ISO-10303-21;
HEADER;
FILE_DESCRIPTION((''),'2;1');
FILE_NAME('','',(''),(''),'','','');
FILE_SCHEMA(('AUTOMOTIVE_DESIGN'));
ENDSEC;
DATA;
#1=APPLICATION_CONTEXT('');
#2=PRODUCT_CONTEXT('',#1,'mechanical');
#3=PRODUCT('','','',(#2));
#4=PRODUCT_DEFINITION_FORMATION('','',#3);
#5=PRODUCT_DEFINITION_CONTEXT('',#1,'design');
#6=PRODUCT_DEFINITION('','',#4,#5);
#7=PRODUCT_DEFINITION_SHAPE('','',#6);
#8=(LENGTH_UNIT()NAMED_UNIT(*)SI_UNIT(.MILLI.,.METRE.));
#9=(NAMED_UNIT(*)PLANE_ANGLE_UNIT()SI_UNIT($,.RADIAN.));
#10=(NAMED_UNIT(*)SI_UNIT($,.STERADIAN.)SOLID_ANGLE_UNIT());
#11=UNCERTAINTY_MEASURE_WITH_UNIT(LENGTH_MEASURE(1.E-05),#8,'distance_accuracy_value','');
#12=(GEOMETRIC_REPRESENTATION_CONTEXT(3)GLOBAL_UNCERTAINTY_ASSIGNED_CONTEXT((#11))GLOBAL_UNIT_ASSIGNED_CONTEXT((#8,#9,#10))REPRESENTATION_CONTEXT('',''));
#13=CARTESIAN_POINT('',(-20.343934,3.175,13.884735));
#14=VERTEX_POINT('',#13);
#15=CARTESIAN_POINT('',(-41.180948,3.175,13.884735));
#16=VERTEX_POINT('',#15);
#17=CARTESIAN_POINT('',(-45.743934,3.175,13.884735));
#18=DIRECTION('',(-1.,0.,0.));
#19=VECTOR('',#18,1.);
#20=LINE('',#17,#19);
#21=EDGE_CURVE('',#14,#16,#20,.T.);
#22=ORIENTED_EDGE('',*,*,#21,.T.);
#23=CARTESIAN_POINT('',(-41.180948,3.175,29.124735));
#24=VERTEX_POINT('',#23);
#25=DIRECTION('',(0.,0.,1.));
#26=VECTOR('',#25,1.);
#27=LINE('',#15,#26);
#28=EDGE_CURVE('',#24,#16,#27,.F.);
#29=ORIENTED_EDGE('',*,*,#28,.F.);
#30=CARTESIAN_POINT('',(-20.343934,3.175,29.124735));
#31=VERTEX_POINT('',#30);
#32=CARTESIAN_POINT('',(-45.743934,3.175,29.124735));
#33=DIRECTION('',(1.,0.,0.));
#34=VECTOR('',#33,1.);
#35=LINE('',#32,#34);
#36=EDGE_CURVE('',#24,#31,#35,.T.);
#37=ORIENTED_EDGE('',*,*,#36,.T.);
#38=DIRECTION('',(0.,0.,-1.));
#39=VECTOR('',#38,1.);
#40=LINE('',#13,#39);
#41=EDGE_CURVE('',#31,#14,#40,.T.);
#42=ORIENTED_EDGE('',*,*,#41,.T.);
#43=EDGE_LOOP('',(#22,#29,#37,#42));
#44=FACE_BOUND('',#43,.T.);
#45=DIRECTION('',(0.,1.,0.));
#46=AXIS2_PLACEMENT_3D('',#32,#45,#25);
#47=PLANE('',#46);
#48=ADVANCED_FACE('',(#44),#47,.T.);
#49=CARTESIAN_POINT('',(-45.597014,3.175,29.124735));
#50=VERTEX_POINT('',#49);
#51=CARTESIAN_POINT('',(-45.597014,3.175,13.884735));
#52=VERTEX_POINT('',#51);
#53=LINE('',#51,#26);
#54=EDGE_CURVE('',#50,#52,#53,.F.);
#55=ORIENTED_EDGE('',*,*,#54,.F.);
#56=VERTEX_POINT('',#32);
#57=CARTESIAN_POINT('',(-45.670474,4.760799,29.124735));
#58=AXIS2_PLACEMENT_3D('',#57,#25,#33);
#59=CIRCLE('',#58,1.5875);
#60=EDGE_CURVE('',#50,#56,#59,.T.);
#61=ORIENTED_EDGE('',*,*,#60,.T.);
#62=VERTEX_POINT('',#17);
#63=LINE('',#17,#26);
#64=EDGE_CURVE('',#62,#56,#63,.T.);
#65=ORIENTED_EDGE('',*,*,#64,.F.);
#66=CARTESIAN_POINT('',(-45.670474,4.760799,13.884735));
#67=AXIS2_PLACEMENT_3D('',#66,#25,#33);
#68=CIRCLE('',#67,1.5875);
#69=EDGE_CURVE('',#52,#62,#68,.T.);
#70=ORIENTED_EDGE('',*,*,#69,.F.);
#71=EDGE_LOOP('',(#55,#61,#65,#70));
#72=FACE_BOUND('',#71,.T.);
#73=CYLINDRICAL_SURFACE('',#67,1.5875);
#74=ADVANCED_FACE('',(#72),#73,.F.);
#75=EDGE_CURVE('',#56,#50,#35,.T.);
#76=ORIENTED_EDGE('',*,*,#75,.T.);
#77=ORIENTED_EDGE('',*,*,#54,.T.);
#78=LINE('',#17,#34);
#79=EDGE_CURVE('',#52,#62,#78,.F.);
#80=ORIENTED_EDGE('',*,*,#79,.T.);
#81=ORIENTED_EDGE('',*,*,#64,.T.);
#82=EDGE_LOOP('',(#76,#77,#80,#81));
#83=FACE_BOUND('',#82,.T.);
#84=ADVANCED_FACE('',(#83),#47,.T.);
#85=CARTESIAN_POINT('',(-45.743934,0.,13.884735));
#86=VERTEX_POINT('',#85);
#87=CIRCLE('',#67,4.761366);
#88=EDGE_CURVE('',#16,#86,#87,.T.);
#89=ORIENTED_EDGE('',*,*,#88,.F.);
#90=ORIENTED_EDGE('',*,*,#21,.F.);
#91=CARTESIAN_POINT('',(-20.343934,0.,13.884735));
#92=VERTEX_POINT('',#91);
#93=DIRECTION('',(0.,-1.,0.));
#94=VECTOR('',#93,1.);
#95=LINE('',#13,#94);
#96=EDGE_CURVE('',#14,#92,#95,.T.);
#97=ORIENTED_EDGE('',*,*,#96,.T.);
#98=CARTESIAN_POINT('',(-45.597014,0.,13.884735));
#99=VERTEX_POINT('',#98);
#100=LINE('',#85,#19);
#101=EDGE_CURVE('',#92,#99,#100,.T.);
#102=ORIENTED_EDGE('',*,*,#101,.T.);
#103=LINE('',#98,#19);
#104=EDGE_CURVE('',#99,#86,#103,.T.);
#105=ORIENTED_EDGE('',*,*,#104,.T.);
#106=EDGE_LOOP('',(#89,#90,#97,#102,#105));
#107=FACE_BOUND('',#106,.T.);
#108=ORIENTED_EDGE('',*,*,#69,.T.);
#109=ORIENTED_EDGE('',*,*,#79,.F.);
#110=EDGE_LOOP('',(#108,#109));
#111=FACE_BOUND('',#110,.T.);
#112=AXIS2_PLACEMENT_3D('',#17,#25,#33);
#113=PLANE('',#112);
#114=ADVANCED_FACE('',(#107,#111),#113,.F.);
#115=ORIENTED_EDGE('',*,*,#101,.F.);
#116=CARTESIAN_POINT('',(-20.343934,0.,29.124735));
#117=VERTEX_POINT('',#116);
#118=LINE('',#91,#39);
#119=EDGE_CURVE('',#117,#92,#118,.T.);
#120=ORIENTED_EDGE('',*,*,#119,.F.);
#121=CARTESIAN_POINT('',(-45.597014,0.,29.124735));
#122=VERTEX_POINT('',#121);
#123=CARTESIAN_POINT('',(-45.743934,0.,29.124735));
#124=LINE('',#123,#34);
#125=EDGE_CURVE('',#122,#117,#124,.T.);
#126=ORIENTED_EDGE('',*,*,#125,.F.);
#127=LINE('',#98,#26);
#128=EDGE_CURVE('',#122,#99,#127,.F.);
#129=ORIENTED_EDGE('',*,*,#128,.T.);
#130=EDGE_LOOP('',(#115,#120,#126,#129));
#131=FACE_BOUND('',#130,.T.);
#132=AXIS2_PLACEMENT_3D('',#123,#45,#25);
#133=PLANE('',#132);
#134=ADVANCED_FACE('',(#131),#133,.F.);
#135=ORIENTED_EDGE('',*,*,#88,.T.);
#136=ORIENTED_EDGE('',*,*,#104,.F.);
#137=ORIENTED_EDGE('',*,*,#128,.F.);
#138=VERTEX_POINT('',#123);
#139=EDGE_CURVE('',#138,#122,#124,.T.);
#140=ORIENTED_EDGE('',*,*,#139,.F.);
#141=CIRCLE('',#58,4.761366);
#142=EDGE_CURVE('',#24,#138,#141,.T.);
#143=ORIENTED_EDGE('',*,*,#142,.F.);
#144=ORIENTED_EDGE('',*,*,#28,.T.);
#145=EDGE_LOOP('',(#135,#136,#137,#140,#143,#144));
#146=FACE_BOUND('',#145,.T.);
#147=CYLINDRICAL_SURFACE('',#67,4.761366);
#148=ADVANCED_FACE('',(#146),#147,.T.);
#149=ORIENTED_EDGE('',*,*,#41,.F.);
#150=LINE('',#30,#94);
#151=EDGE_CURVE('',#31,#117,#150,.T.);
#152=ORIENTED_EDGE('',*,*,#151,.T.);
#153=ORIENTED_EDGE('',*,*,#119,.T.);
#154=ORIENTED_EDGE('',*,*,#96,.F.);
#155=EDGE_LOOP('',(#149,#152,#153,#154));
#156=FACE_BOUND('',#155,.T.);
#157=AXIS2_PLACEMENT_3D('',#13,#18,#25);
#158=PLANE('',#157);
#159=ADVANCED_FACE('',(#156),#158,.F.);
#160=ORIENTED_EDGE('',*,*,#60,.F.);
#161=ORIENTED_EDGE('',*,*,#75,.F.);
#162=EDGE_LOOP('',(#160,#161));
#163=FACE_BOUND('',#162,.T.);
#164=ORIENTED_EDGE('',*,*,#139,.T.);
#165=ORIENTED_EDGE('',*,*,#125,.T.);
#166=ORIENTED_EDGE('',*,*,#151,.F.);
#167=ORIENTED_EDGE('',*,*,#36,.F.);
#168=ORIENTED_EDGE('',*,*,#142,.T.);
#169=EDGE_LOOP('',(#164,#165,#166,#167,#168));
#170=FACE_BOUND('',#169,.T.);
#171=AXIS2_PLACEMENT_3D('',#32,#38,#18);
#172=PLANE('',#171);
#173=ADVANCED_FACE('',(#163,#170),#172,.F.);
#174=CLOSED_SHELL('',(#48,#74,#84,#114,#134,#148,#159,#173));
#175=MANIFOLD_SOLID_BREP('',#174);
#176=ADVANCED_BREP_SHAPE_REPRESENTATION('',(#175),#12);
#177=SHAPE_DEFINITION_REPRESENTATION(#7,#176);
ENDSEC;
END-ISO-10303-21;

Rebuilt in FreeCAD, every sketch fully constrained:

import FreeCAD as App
import Part
import Sketcher
Q = App.Units.Quantity

doc = App.newDocument("Part")
body = doc.addObject("PartDesign::Body", "Body")

# Sketch on XZ plane
sketch1 = body.newObject("Sketcher::SketchObject", "Sketch")
sketch1.AttachmentSupport = (doc.getObject("XZ_Plane"), [""])
sketch1.MapMode = "FlatFace"
sketch1.addGeometry(Part.LineSegment(App.Vector(-45.743934, 13.884735, 0), App.Vector(-45.743934, 29.124735, 0)), False)
sketch1.addGeometry(Part.LineSegment(App.Vector(-45.743934, 29.124735, 0), App.Vector(-20.343934, 29.124735, 0)), False)
sketch1.addGeometry(Part.LineSegment(App.Vector(-20.343934, 29.124735, 0), App.Vector(-20.343934, 13.884735, 0)), False)
sketch1.addGeometry(Part.LineSegment(App.Vector(-20.343934, 13.884735, 0), App.Vector(-45.743934, 13.884735, 0)), False)
sketch1.addConstraint(Sketcher.Constraint("Coincident", 0, 2, 1, 1))
sketch1.addConstraint(Sketcher.Constraint("Coincident", 1, 2, 2, 1))
sketch1.addConstraint(Sketcher.Constraint("Coincident", 2, 2, 3, 1))
sketch1.addConstraint(Sketcher.Constraint("Coincident", 3, 2, 0, 1))
sketch1.addConstraint(Sketcher.Constraint("Vertical", 0))
sketch1.addConstraint(Sketcher.Constraint("Horizontal", 1))
sketch1.addConstraint(Sketcher.Constraint("Vertical", 2))
sketch1.addConstraint(Sketcher.Constraint("Horizontal", 3))
sketch1.addConstraint(Sketcher.Constraint("DistanceX", 1, 1, 1, 2, Q("1 in")))
sketch1.addConstraint(Sketcher.Constraint("DistanceY", 0, 1, 0, 2, Q("0.6 in")))
sketch1.addConstraint(Sketcher.Constraint("DistanceX", 0, 2, -1, 1, 45.743934))
sketch1.addConstraint(Sketcher.Constraint("DistanceY", -1, 1, 0, 2, 29.124735))
pad1 = body.newObject("PartDesign::Pad", "Pad")
pad1.Profile = sketch1
pad1.Length = Q("0.125 in")
pad1.Reversed = True

# Sketch on XY plane
sketch2 = body.newObject("Sketcher::SketchObject", "Sketch001")
sketch2.AttachmentSupport = (doc.getObject("XY_Plane"), [""])
sketch2.MapMode = "FlatFace"
sketch2.AttachmentOffset = App.Placement(App.Vector(0, 0, 29.124735), App.Rotation())
sketch2.addGeometry(Part.Circle(App.Vector(-45.670474, 4.760799, 0), App.Vector(0, 0, 1), 4.761366), False)
sketch2.addGeometry(Part.Circle(App.Vector(-45.670474, 4.760799, 0), App.Vector(0, 0, 1), 1.5875), False)
sketch2.addConstraint(Sketcher.Constraint("Coincident", 1, 3, 0, 3))
sketch2.addConstraint(Sketcher.Constraint("Diameter", 1, Q("0.125 in")))
sketch2.addConstraint(Sketcher.Constraint("Diameter", 0, 9.522732))
sketch2.addConstraint(Sketcher.Constraint("DistanceY", -1, 1, 0, 3, 4.760799))
sketch2.addConstraint(Sketcher.Constraint("DistanceX", 0, 3, -1, 1, 45.670474))
pad2 = body.newObject("PartDesign::Pad", "Pad001")
pad2.Profile = sketch2
pad2.Length = Q("0.6 in")
pad2.Reversed = True

doc.recompute()
